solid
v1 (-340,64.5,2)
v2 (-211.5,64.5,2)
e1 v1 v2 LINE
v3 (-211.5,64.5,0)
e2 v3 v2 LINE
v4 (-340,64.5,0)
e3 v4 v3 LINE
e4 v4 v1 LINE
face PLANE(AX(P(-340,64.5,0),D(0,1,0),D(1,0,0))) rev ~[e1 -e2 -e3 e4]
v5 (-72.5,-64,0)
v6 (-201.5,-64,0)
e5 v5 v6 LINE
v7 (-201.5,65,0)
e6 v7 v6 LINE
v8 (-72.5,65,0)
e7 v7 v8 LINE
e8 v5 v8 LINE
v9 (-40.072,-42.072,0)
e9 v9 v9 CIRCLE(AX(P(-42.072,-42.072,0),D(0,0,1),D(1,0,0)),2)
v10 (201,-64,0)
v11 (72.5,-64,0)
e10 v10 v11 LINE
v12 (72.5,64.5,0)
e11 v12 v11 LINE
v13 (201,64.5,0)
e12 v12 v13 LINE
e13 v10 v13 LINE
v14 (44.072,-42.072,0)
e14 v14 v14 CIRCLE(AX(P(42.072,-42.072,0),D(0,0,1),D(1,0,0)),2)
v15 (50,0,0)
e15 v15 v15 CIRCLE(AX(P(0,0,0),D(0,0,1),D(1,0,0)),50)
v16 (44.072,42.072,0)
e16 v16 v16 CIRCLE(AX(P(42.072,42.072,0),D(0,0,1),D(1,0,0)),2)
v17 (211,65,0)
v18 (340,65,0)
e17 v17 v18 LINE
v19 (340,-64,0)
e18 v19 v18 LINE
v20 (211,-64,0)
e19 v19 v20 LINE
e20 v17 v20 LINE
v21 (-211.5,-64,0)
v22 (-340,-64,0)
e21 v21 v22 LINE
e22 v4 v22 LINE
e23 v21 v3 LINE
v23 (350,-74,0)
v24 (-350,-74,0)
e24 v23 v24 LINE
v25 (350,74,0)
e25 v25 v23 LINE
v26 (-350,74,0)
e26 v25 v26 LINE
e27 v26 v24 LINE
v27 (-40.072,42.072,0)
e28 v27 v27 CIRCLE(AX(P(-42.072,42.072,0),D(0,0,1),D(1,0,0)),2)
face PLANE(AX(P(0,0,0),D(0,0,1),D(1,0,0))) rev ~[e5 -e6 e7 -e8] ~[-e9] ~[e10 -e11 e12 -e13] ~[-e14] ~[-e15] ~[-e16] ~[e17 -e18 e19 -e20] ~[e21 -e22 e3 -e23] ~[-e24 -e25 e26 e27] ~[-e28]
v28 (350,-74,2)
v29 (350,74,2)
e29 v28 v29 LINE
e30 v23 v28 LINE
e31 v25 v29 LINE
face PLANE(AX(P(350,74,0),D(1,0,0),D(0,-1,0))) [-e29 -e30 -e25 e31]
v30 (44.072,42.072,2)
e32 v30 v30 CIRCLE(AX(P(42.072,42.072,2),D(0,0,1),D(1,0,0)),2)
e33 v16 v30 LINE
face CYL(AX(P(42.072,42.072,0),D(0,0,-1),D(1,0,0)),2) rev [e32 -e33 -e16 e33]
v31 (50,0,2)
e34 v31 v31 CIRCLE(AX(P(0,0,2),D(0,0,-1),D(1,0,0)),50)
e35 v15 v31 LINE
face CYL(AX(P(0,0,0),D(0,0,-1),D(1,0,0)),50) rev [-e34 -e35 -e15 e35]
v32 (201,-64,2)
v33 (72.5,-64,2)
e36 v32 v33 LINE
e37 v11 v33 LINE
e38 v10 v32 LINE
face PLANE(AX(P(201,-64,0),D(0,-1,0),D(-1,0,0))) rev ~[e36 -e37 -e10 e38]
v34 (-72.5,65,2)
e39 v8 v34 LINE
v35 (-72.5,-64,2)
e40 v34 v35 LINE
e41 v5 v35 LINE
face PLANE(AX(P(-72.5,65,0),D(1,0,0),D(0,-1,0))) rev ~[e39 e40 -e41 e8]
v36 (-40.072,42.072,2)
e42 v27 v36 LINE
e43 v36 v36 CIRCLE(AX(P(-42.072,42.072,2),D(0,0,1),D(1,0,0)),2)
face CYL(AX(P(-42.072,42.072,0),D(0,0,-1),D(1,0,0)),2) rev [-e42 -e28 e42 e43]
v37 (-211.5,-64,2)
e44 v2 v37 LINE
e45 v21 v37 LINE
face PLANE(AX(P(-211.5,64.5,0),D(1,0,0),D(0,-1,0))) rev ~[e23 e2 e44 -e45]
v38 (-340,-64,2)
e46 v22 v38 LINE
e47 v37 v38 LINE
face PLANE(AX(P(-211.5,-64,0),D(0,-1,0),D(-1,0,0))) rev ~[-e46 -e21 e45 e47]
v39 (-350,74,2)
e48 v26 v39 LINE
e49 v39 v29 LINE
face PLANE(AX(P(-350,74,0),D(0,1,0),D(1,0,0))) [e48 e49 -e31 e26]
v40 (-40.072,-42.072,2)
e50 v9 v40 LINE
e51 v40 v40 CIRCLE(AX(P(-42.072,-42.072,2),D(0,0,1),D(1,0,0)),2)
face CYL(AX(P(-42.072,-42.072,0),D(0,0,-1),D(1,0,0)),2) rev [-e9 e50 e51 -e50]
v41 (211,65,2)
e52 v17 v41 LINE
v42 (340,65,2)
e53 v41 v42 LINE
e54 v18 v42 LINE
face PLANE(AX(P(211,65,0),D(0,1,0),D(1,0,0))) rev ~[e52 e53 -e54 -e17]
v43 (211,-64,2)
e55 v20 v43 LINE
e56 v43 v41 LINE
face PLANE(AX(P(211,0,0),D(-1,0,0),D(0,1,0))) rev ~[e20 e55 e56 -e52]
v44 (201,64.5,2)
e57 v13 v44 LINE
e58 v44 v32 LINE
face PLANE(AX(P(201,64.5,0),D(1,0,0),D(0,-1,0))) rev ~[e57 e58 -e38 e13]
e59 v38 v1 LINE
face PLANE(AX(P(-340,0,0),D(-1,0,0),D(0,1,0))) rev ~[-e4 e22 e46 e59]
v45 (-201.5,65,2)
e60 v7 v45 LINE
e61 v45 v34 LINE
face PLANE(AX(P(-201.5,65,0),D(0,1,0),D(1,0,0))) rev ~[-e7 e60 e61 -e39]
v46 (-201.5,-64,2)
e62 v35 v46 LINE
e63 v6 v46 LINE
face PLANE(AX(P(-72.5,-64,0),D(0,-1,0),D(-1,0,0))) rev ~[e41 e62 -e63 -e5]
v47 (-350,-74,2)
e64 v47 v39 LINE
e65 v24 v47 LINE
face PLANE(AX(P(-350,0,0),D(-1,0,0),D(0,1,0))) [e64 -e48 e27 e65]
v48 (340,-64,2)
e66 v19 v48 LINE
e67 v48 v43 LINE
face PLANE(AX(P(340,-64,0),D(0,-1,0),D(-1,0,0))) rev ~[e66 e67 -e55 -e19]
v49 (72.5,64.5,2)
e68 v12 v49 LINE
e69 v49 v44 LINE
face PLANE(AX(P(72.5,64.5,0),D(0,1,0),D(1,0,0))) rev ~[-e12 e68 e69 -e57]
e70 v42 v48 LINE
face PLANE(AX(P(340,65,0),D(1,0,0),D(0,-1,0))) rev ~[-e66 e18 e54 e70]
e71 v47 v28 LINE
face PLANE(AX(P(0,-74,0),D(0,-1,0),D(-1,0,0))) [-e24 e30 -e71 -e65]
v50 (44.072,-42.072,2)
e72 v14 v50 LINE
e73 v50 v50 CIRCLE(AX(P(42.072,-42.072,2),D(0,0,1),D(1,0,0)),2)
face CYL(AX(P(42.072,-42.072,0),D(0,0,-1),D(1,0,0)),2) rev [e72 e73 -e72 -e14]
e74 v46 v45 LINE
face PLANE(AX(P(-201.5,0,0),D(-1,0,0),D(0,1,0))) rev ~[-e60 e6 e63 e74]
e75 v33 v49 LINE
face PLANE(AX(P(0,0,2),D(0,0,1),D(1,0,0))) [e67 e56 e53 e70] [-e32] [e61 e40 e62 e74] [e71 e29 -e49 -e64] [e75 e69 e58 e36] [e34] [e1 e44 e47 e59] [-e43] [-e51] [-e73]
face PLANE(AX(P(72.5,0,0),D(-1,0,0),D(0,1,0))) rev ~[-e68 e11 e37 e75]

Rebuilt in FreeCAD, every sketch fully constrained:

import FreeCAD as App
import Part
import Sketcher
Q = App.Units.Quantity

doc = App.newDocument("Part")
body = doc.addObject("PartDesign::Body", "Body")

# Sketch on XY plane
sketch1 = body.newObject("Sketcher::SketchObject", "Sketch")
sketch1.AttachmentSupport = (doc.getObject("XY_Plane"), [""])
sketch1.MapMode = "FlatFace"
sketch1.addGeometry([
    Part.LineSegment(App.Vector(-350, 74, 0), App.Vector(-350, -74, 0)),  # 0
    Part.LineSegment(App.Vector(-350, -74, 0), App.Vector(350, -74, 0)),  # 1
    Part.LineSegment(App.Vector(350, -74, 0), App.Vector(350, 74, 0)),  # 2
    Part.LineSegment(App.Vector(350, 74, 0), App.Vector(-350, 74, 0)),  # 3
    Part.Circle(App.Vector(0, 0, 0), App.Vector(0, 0, 1), 50),  # 4
    Part.LineSegment(App.Vector(-72.5, 65, 0), App.Vector(-72.5, -64, 0)),  # 5
    Part.LineSegment(App.Vector(-72.5, -64, 0), App.Vector(-201.5, -64, 0)),  # 6
    Part.LineSegment(App.Vector(-201.5, -64, 0), App.Vector(-201.5, 65, 0)),  # 7
    Part.LineSegment(App.Vector(-201.5, 65, 0), App.Vector(-72.5, 65, 0)),  # 8
    Part.LineSegment(App.Vector(-211.5, 64.5, 0), App.Vector(-211.5, -64, 0)),  # 9
    Part.LineSegment(App.Vector(-211.5, -64, 0), App.Vector(-340, -64, 0)),  # 10
    Part.LineSegment(App.Vector(-340, -64, 0), App.Vector(-340, 64.5, 0)),  # 11
    Part.LineSegment(App.Vector(-340, 64.5, 0), App.Vector(-211.5, 64.5, 0)),  # 12
    Part.Circle(App.Vector(-42.1, 42.1, 0), App.Vector(0, 0, 1), 2),  # 13
    Part.LineSegment(App.Vector(340, 65, 0), App.Vector(340, -64, 0)),  # 14
    Part.LineSegment(App.Vector(340, -64, 0), App.Vector(211, -64, 0)),  # 15
    Part.LineSegment(App.Vector(211, -64, 0), App.Vector(211, 65, 0)),  # 16
    Part.LineSegment(App.Vector(211, 65, 0), App.Vector(340, 65, 0)),  # 17
    Part.LineSegment(App.Vector(201, 64.5, 0), App.Vector(201, -64, 0)),  # 18
    Part.LineSegment(App.Vector(201, -64, 0), App.Vector(72.5, -64, 0)),  # 19
    Part.LineSegment(App.Vector(72.5, -64, 0), App.Vector(72.5, 64.5, 0)),  # 20
    Part.LineSegment(App.Vector(72.5, 64.5, 0), App.Vector(201, 64.5, 0)),  # 21
    Part.Circle(App.Vector(42.1, 42.1, 0), App.Vector(0, 0, 1), 2),  # 22
    Part.Circle(App.Vector(-42.1, -42.1, 0), App.Vector(0, 0, 1), 2),  # 23
    Part.Circle(App.Vector(42.1, -42.1, 0), App.Vector(0, 0, 1), 2),  # 24
], False)
sketch1.addConstraint([
    Sketcher.Constraint("Coincident", 0, 2, 1, 1),
    Sketcher.Constraint("Coincident", 1, 2, 2, 1),
    Sketcher.Constraint("Coincident", 2, 2, 3, 1),
    Sketcher.Constraint("Coincident", 3, 2, 0, 1),
    Sketcher.Constraint("Coincident", 5, 2, 6, 1),
    Sketcher.Constraint("Coincident", 6, 2, 7, 1),
    Sketcher.Constraint("Coincident", 7, 2, 8, 1),
    Sketcher.Constraint("Coincident", 8, 2, 5, 1),
    Sketcher.Constraint("Coincident", 9, 2, 10, 1),
    Sketcher.Constraint("Coincident", 10, 2, 11, 1),
    Sketcher.Constraint("Coincident", 11, 2, 12, 1),
    Sketcher.Constraint("Coincident", 12, 2, 9, 1),
    Sketcher.Constraint("Coincident", 14, 2, 15, 1),
    Sketcher.Constraint("Coincident", 15, 2, 16, 1),
    Sketcher.Constraint("Coincident", 16, 2, 17, 1),
    Sketcher.Constraint("Coincident", 17, 2, 14, 1),
    Sketcher.Constraint("Coincident", 18, 2, 19, 1),
    Sketcher.Constraint("Coincident", 19, 2, 20, 1),
    Sketcher.Constraint("Coincident", 20, 2, 21, 1),
    Sketcher.Constraint("Coincident", 21, 2, 18, 1),
    Sketcher.Constraint("Vertical", 0),
    Sketcher.Constraint("Horizontal", 1),
    Sketcher.Constraint("Vertical", 2),
    Sketcher.Constraint("Horizontal", 3),
    Sketcher.Constraint("Vertical", 5),
    Sketcher.Constraint("Horizontal", 6),
    Sketcher.Constraint("Vertical", 7),
    Sketcher.Constraint("Horizontal", 8),
    Sketcher.Constraint("Vertical", 9),
    Sketcher.Constraint("Horizontal", 10),
    Sketcher.Constraint("Vertical", 11),
    Sketcher.Constraint("Horizontal", 12),
    Sketcher.Constraint("Vertical", 14),
    Sketcher.Constraint("Horizontal", 15),
    Sketcher.Constraint("Vertical", 16),
    Sketcher.Constraint("Horizontal", 17),
    Sketcher.Constraint("Vertical", 18),
    Sketcher.Constraint("Horizontal", 19),
    Sketcher.Constraint("Vertical", 20),
    Sketcher.Constraint("Horizontal", 21),
    Sketcher.Constraint("Coincident", 4, 3, -1, 1),
    Sketcher.Constraint("Equal", 13, 22),
    Sketcher.Constraint("Equal", 22, 23),
    Sketcher.Constraint("Equal", 23, 24),
    Sketcher.Constraint("Symmetric", 22, 3, 23, 3, -1, 1),
    Sketcher.Constraint("Symmetric", 13, 3, 24, 3, -1, 1),
    Sketcher.Constraint("Symmetric", 0, 2, 2, 2, -1, 1),
    Sketcher.Constraint("Symmetric", 13, 3, 22, 3, -2),
    Sketcher.Constraint("Symmetric", 10, 2, 14, 2, -2),
    Sketcher.Constraint("Symmetric", 5, 2, 19, 2, -2),
    Sketcher.Constraint("Horizontal", 6, 2, 9, 2),
    Sketcher.Constraint("Horizontal", 8, 2, 16, 2),
    Sketcher.Constraint("Horizontal", 12, 2, 20, 2),
    Sketcher.Constraint("Equal", 8, 15),
    Sketcher.Constraint("Equal", 12, 19),
    Sketcher.Constraint("Equal", 17, 5),
    Sketcher.Constraint("Equal", 21, 9),
    Sketcher.Constraint("Diameter", 4, Q("100 mm")),
    Sketcher.Constraint("Diameter", 13, Q("4 mm")),
    Sketcher.Constraint("DistanceX", 1, 1, 1, 2, Q("700 mm")),
    Sketcher.Constraint("DistanceX", 6, 2, 6, 1, Q("129 mm")),
    Sketcher.Constraint("DistanceY", 0, 2, 0, 1, Q("148 mm")),
    Sketcher.Constraint("DistanceX", 10, 2, 10, 1, Q("128.5 mm")),
    Sketcher.Constraint("DistanceY", 0, 2, 6, 2, Q("10 mm")),
    Sketcher.Constraint("DistanceX", 9, 2, 6, 2, Q("10 mm")),
    Sketcher.Constraint("DistanceX", 0, 2, 10, 2, Q("10 mm")),
    Sketcher.Constraint("DistanceX", 13, 3, -1, 1, Q("42.072 mm")),
    Sketcher.Constraint("DistanceY", -1, 1, 13, 3, Q("42.072 mm")),
])
pad1 = body.newObject("PartDesign::Pad", "Pad")
pad1.Profile = sketch1
pad1.Length = 2

doc.recompute()
